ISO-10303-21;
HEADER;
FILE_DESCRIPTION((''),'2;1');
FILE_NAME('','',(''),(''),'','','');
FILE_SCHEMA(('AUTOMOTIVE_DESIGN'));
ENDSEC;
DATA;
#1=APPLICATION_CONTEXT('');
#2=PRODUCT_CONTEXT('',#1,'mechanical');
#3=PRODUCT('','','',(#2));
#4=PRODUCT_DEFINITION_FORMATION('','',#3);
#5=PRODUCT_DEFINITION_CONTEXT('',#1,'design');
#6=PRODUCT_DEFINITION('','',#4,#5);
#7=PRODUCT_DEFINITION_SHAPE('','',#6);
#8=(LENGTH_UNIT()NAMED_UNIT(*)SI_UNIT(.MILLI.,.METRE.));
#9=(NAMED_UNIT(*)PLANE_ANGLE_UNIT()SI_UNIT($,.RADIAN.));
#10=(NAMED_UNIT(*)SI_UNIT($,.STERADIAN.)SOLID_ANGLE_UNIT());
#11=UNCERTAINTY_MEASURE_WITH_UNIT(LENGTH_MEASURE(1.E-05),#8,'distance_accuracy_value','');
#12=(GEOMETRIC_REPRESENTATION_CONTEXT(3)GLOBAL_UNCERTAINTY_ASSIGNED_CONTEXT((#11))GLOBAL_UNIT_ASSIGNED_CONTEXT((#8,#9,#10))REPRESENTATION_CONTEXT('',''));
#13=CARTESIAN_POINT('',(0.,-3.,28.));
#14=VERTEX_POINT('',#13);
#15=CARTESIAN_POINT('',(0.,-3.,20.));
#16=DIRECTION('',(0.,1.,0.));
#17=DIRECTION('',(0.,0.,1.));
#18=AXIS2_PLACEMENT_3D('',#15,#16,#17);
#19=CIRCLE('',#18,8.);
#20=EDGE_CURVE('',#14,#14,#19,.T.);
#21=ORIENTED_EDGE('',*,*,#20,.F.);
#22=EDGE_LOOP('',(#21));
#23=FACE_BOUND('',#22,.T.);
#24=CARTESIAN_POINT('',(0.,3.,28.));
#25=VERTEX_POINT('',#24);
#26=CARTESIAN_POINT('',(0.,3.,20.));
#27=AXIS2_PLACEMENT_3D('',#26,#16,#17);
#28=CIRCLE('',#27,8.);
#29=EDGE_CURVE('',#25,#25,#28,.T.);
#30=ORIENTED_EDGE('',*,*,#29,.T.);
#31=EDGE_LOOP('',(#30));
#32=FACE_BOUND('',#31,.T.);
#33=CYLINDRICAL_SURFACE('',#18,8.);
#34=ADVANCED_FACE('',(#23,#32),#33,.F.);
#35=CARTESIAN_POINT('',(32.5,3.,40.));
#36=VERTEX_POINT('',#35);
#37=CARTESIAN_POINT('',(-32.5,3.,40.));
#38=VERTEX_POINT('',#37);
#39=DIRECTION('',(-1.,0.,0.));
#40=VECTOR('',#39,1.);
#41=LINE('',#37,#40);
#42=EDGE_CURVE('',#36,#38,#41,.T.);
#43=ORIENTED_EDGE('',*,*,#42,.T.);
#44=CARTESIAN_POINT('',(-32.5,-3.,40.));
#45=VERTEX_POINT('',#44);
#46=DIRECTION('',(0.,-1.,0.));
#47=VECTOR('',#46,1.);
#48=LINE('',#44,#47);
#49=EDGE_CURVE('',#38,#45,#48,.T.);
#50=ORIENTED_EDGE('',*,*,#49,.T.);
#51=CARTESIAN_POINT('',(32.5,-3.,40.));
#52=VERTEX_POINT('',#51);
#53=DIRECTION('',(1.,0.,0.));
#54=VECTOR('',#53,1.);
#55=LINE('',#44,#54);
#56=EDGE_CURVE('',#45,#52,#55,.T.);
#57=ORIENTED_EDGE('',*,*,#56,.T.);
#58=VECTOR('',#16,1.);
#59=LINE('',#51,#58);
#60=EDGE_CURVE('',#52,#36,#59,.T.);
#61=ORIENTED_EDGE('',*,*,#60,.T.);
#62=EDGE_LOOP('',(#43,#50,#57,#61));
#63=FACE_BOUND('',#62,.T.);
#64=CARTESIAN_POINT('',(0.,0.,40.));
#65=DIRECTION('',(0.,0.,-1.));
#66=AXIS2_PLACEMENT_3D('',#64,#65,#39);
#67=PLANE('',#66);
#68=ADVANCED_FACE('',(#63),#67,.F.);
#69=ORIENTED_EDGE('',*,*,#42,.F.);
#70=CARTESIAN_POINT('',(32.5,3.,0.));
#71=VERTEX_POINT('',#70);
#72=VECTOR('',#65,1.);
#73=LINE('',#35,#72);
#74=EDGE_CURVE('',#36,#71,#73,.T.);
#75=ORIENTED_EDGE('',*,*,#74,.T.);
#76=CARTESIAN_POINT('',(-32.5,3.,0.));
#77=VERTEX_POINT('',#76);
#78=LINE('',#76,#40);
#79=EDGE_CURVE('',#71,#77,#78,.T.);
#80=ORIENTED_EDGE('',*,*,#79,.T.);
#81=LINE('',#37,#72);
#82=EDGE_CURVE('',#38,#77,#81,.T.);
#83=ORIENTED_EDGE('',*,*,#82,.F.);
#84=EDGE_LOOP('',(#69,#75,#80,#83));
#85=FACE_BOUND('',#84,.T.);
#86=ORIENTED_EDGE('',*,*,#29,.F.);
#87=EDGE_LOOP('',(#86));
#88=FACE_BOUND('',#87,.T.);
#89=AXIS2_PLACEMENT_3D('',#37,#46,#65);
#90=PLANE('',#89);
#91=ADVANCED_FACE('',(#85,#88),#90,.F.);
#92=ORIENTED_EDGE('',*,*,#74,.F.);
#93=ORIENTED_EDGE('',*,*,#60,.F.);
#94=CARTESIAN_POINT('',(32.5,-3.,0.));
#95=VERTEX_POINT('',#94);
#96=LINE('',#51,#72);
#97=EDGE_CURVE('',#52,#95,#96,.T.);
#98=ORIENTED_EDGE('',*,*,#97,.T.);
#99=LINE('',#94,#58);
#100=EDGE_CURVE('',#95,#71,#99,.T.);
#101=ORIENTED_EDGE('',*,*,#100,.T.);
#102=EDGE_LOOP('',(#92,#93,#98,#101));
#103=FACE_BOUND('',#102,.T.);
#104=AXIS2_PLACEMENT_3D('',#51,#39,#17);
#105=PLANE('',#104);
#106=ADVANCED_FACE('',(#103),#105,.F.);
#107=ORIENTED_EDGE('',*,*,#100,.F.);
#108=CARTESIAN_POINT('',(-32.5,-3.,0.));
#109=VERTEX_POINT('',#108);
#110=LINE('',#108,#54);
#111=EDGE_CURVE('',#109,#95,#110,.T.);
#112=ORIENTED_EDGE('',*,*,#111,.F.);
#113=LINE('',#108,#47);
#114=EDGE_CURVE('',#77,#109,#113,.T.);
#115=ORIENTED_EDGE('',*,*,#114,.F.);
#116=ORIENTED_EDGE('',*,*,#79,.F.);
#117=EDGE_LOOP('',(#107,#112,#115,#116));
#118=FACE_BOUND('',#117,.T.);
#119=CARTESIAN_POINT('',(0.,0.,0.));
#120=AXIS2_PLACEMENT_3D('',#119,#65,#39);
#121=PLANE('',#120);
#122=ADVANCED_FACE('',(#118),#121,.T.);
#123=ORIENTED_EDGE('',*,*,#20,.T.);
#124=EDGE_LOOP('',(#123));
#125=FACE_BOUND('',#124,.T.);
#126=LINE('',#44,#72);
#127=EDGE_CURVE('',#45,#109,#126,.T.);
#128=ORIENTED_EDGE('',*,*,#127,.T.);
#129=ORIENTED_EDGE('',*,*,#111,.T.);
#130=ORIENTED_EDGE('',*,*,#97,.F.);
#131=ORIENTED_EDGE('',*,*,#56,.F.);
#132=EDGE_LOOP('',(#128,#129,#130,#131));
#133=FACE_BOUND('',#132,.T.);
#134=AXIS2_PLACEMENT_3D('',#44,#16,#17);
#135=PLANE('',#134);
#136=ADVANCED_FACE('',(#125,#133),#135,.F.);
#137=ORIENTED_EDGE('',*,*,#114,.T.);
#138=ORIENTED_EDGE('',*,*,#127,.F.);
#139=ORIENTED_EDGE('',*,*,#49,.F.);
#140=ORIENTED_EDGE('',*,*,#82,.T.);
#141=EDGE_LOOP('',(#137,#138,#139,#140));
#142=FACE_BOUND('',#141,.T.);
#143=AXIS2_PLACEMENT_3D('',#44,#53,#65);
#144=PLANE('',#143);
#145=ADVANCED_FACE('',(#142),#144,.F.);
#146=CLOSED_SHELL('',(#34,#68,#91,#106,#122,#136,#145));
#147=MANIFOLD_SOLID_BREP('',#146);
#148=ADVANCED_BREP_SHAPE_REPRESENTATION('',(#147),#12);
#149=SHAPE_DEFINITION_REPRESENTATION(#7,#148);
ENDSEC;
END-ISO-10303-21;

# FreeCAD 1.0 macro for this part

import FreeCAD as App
import Part
import Sketcher

V = App.Vector


def add_polygon(sketch, points):
    """Adds a closed chain of lines whose ends are joined by coincident constraints."""
    first, n = sketch.GeometryCount, len(points)
    for a, b in zip(points, points[1:] + points[:1]):
        sketch.addGeometry(Part.LineSegment(App.Vector(*a, 0), App.Vector(*b, 0)), False)
    for i in range(n):
        sketch.addConstraint(Sketcher.Constraint("Coincident", first + i, 2, first + (i + 1) % n, 1))

doc = App.newDocument("Part")
body = doc.addObject("PartDesign::Body", "Body")

# Sketch on XY plane
sketch1 = body.newObject("Sketcher::SketchObject", "Sketch")
sketch1.AttachmentSupport = (doc.getObject("XY_Plane"), [""])
sketch1.MapMode = "FlatFace"
add_polygon(sketch1, [(-32, 3), (-32, -3), (32, -3), (32, 3)])  # lines 0-3
sketch1.addConstraint(Sketcher.Constraint("Vertical", 0))
sketch1.addConstraint(Sketcher.Constraint("Horizontal", 1))
sketch1.addConstraint(Sketcher.Constraint("Vertical", 2))
sketch1.addConstraint(Sketcher.Constraint("Horizontal", 3))
sketch1.addConstraint(Sketcher.Constraint("Symmetric", 0, 2, 2, 2, -1, 1))
sketch1.addConstraint(Sketcher.Constraint("DistanceX", 1, 1, 1, 2, 65.0))
sketch1.addConstraint(Sketcher.Constraint("DistanceY", 0, 2, 0, 1, 6.0))
pad1 = body.newObject("PartDesign::Pad", "Pad")
pad1.Profile = sketch1
pad1.Length = 40

# Sketch on XZ plane
sketch2 = body.newObject("Sketcher::SketchObject", "Sketch001")
sketch2.AttachmentSupport = (doc.getObject("XZ_Plane"), [""])
sketch2.MapMode = "FlatFace"
sketch2.AttachmentOffset = App.Placement(V(0, 0, -3), App.Rotation())
sketch2.addGeometry(Part.Circle(V(0, 20, 0), V(0, 0, 1), 8), False)
sketch2.addConstraint(Sketcher.Constraint("PointOnObject", 0, 3, -2))
sketch2.addConstraint(Sketcher.Constraint("Diameter", 0, 16.0))
sketch2.addConstraint(Sketcher.Constraint("DistanceY", -1, 1, 0, 3, 20.0))
pocket1 = body.newObject("PartDesign::Pocket", "Pocket")
pocket1.Profile = sketch2
pocket1.Type = "ThroughAll"
pocket1.Reversed = True

doc.recompute()
